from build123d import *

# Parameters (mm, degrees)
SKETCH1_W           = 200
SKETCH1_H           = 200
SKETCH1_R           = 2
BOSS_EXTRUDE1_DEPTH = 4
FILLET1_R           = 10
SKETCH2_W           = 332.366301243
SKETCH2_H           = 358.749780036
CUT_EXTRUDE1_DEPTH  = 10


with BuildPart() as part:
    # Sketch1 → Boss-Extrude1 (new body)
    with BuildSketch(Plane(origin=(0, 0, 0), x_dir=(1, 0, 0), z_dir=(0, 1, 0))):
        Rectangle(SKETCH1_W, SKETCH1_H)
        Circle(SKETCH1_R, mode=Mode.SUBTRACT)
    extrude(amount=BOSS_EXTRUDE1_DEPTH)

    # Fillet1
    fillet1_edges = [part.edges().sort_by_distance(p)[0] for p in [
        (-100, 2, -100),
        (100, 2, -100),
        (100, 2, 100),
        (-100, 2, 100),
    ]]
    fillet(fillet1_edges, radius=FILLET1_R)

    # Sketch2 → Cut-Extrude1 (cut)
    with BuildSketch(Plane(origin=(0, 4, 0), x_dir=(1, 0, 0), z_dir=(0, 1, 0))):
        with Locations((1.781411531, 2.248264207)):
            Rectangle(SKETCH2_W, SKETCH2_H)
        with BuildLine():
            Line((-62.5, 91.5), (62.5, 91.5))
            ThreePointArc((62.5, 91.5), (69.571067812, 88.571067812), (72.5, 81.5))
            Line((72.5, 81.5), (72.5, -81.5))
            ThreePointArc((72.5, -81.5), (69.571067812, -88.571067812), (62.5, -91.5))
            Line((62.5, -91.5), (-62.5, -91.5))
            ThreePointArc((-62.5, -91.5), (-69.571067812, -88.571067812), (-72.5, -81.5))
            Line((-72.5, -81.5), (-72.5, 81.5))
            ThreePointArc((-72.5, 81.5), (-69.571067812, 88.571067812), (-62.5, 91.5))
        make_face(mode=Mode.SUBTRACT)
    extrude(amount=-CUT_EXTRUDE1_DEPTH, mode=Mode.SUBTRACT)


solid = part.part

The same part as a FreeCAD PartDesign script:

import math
import FreeCAD as App
import Part
import Sketcher

V = App.Vector


def edges_at(feature, points):
    """Names of the edges that pass closest to the given points."""
    edges = feature.Shape.Edges
    near = lambda p: min(range(len(edges)), key=lambda i: edges[i].distToShape(Part.Vertex(*p))[0])
    return sorted({f"Edge{near(p) + 1}" for p in points})

doc = App.newDocument("Part")
body = doc.addObject("PartDesign::Body", "Body")

# Sketch on XZ plane
sketch1 = body.newObject("Sketcher::SketchObject", "Sketch")
sketch1.AttachmentSupport = (doc.getObject("XZ_Plane"), [""])
sketch1.MapMode = "FlatFace"
sketch1.addGeometry(Part.LineSegment(V(-100, -100, 0), V(-100, 100, 0)), False)
sketch1.addGeometry(Part.LineSegment(V(-100, 100, 0), V(100, 100, 0)), False)
sketch1.addGeometry(Part.LineSegment(V(100, 100, 0), V(100, -100, 0)), False)
sketch1.addGeometry(Part.LineSegment(V(100, -100, 0), V(-100, -100, 0)), False)
sketch1.addGeometry(Part.Circle(V(0, 0, 0), V(0, 0, 1), 2), False)
sketch1.addConstraint(Sketcher.Constraint("Coincident", 0, 2, 1, 1))
sketch1.addConstraint(Sketcher.Constraint("Coincident", 1, 2, 2, 1))
sketch1.addConstraint(Sketcher.Constraint("Coincident", 2, 2, 3, 1))
sketch1.addConstraint(Sketcher.Constraint("Coincident", 3, 2, 0, 1))
sketch1.addConstraint(Sketcher.Constraint("Vertical", 0))
sketch1.addConstraint(Sketcher.Constraint("Horizontal", 1))
sketch1.addConstraint(Sketcher.Constraint("Vertical", 2))
sketch1.addConstraint(Sketcher.Constraint("Horizontal", 3))
sketch1.addConstraint(Sketcher.Constraint("Coincident", 4, 3, -1, 1))
sketch1.addConstraint(Sketcher.Constraint("Symmetric", 0, 2, 2, 2, -1, 1))
sketch1.addConstraint(Sketcher.Constraint("Equal", 3, 0))
sketch1.addConstraint(Sketcher.Constraint("Diameter", 4, 4.0))
sketch1.addConstraint(Sketcher.Constraint("DistanceX", 1, 1, 1, 2, 200.0))
pad1 = body.newObject("PartDesign::Pad", "Pad")
pad1.Profile = sketch1
pad1.Length = 4
pad1.Reversed = True
doc.recompute()

fillet = body.newObject("PartDesign::Fillet", "Fillet")
fillet.Base = (pad1, edges_at(pad1, [
    (-100, 2, -100),
    (100, 2, -100),
    (100, 2, 100),
    (-100, 2, 100),
]))
fillet.Radius = 10

# Sketch on XZ plane
sketch2 = body.newObject("Sketcher::SketchObject", "Sketch001")
sketch2.AttachmentSupport = (doc.getObject("XZ_Plane"), [""])
sketch2.MapMode = "FlatFace"
sketch2.AttachmentOffset = App.Placement(V(0, 0, -4), App.Rotation())
sketch2.addGeometry(Part.LineSegment(V(-164.401739, -181.623154, 0), V(-164.401739, 177.126626, 0)), False)
sketch2.addGeometry(Part.LineSegment(V(-164.401739, 177.126626, 0), V(167.964562, 177.126626, 0)), False)
sketch2.addGeometry(Part.LineSegment(V(167.964562, 177.126626, 0), V(167.964562, -181.623154, 0)), False)
sketch2.addGeometry(Part.LineSegment(V(167.964562, -181.623154, 0), V(-164.401739, -181.623154, 0)), False)
sketch2.addGeometry(Part.ArcOfCircle(Part.Circle(V(-62.5, -81.5, 0), V(0, 0, 1), 10), math.radians(180), math.radians(270)), False)
sketch2.addGeometry(Part.LineSegment(V(-62.5, -91.5, 0), V(62.5, -91.5, 0)), False)
sketch2.addGeometry(Part.ArcOfCircle(Part.Circle(V(62.5, -81.5, 0), V(0, 0, 1), 10), math.radians(-90), math.radians(0)), False)
sketch2.addGeometry(Part.LineSegment(V(72.5, -81.5, 0), V(72.5, 81.5, 0)), False)
sketch2.addGeometry(Part.ArcOfCircle(Part.Circle(V(62.5, 81.5, 0), V(0, 0, 1), 10), math.radians(0), math.radians(90)), False)
sketch2.addGeometry(Part.LineSegment(V(62.5, 91.5, 0), V(-62.5, 91.5, 0)), False)
sketch2.addGeometry(Part.ArcOfCircle(Part.Circle(V(-62.5, 81.5, 0), V(0, 0, 1), 10), math.radians(90), math.radians(180)), False)
sketch2.addGeometry(Part.LineSegment(V(-72.5, 81.5, 0), V(-72.5, -81.5, 0)), False)
sketch2.addConstraint(Sketcher.Constraint("Coincident", 0, 2, 1, 1))
sketch2.addConstraint(Sketcher.Constraint("Coincident", 1, 2, 2, 1))
sketch2.addConstraint(Sketcher.Constraint("Coincident", 2, 2, 3, 1))
sketch2.addConstraint(Sketcher.Constraint("Coincident", 3, 2, 0, 1))
sketch2.addConstraint(Sketcher.Constraint("Tangent", 4, 2, 5, 1))
sketch2.addConstraint(Sketcher.Constraint("Tangent", 5, 2, 6, 1))
sketch2.addConstraint(Sketcher.Constraint("Tangent", 6, 2, 7, 1))
sketch2.addConstraint(Sketcher.Constraint("Tangent", 7, 2, 8, 1))
sketch2.addConstraint(Sketcher.Constraint("Tangent", 8, 2, 9, 1))
sketch2.addConstraint(Sketcher.Constraint("Tangent", 9, 2, 10, 1))
sketch2.addConstraint(Sketcher.Constraint("Tangent", 10, 2, 11, 1))
sketch2.addConstraint(Sketcher.Constraint("Tangent", 11, 2, 4, 1))
sketch2.addConstraint(Sketcher.Constraint("Vertical", 0))
sketch2.addConstraint(Sketcher.Constraint("Horizontal", 1))
sketch2.addConstraint(Sketcher.Constraint("Vertical", 2))
sketch2.addConstraint(Sketcher.Constraint("Horizontal", 3))
sketch2.addConstraint(Sketcher.Constraint("Horizontal", 5))
sketch2.addConstraint(Sketcher.Constraint("Vertical", 7))
sketch2.addConstraint(Sketcher.Constraint("Horizontal", 9))
sketch2.addConstraint(Sketcher.Constraint("Vertical", 11))
sketch2.addConstraint(Sketcher.Constraint("Equal", 4, 6))
sketch2.addConstraint(Sketcher.Constraint("Equal", 6, 8))
sketch2.addConstraint(Sketcher.Constraint("Equal", 8, 10))
sketch2.addConstraint(Sketcher.Constraint("Symmetric", 4, 3, 8, 3, -1, 1))
sketch2.addConstraint(Sketcher.Constraint("Radius", 4, 10.0))
sketch2.addConstraint(Sketcher.Constraint("DistanceX", 5, 1, 5, 2, 125.0))
sketch2.addConstraint(Sketcher.Constraint("DistanceY", 7, 1, 7, 2, 163.0))
sketch2.addConstraint(Sketcher.Constraint("DistanceX", 1, 1, 1, 2, 332.366301))
sketch2.addConstraint(Sketcher.Constraint("DistanceY", 0, 1, 0, 2, 358.74978))
sketch2.addConstraint(Sketcher.Constraint("DistanceX", 0, 2, -1, 1, 164.401739))
sketch2.addConstraint(Sketcher.Constraint("DistanceY", -1, 1, 0, 2, 177.126626))
pocket1 = body.newObject("PartDesign::Pocket", "Pocket")
pocket1.Profile = sketch2
pocket1.Length = 10
pocket1.Reversed = True

doc.recompute()
